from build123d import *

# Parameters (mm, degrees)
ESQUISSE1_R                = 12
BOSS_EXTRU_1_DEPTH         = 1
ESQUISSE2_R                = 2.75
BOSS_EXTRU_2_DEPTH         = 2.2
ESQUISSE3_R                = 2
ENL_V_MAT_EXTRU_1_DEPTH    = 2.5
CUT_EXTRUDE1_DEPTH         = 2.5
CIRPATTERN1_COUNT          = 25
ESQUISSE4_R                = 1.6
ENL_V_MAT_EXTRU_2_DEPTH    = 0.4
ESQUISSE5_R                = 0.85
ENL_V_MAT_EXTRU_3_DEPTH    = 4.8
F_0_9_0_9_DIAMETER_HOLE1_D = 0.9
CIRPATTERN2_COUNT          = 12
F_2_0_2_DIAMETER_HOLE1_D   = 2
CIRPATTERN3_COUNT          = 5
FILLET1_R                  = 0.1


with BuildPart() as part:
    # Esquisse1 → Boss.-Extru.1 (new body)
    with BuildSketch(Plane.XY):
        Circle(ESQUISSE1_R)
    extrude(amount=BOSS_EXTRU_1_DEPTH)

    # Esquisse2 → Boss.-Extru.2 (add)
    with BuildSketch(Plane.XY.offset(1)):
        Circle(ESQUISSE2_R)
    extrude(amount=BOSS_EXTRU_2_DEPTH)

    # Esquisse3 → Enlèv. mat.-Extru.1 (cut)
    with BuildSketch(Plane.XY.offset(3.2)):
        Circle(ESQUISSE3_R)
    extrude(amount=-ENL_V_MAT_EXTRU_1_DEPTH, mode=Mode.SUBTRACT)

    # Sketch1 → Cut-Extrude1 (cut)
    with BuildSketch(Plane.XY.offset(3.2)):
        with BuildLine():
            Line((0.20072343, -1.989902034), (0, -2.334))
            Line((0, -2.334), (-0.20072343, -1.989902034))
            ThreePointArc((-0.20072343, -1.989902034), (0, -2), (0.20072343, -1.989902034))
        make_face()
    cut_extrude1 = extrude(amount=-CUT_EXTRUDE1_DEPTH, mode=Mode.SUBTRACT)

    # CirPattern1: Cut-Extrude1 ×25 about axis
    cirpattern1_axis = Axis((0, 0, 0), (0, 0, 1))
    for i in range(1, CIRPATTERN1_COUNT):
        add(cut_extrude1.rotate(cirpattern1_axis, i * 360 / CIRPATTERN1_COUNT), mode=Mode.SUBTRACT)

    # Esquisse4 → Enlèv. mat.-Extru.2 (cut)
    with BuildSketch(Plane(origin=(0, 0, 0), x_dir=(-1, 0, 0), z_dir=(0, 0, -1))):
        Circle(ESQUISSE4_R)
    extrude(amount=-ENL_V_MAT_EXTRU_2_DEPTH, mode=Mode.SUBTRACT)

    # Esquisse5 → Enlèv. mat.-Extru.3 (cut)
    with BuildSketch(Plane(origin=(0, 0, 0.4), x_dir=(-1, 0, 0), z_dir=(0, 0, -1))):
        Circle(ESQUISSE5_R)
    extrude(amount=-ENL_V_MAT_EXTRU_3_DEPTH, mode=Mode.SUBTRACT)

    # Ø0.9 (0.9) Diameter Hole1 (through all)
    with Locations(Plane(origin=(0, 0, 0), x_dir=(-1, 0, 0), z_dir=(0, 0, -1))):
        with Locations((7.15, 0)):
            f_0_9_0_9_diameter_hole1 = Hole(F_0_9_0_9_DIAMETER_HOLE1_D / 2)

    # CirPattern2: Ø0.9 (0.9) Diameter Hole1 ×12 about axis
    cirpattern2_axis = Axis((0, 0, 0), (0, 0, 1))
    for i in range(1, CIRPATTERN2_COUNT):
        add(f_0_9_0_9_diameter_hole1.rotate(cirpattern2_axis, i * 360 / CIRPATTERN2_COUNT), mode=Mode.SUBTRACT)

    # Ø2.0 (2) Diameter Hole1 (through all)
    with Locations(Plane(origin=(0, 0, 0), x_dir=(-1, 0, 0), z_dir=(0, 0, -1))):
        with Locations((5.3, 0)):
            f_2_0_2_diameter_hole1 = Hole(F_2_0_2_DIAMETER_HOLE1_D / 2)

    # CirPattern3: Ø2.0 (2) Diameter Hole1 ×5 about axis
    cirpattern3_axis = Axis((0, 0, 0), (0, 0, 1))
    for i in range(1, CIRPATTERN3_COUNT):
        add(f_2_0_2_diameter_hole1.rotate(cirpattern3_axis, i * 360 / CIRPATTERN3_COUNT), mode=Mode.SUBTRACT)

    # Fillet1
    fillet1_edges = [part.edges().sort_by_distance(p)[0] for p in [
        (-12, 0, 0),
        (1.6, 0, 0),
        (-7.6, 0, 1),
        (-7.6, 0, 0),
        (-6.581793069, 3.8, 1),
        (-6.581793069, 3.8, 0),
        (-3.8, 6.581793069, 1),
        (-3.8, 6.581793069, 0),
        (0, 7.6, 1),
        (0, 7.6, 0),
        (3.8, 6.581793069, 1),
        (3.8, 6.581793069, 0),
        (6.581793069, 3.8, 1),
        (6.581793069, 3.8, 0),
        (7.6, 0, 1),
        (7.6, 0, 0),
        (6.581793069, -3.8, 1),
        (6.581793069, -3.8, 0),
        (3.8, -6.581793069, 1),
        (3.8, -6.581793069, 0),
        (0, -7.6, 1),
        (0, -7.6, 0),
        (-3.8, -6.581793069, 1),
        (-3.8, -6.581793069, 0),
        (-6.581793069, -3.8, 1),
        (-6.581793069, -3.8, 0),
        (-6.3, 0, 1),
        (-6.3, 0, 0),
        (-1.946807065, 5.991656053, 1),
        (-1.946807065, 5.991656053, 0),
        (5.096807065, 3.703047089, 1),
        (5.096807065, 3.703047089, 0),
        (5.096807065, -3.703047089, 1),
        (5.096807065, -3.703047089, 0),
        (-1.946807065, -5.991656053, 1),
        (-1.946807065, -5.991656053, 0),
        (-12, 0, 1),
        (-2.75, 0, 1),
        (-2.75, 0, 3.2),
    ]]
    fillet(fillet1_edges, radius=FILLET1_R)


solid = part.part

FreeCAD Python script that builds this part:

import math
import FreeCAD as App
import Part
import Sketcher
from FreeCAD import Vector
Q = App.Units.Quantity


def edges_at(feature, points):
    """Names of the edges that pass closest to the given points."""
    edges = feature.Shape.Edges
    near = lambda p: min(range(len(edges)), key=lambda i: edges[i].distToShape(Part.Vertex(*p))[0])
    return sorted({f"Edge{near(p) + 1}" for p in points})

doc = App.newDocument("Part")
params = doc.addObject("Spreadsheet::Sheet", "Params")
for row, (alias, value) in enumerate([
    ("sketch1_diameter", "24 mm"),
    ("pad1_length", "1 mm"),
    ("sketch2_diameter", "5.5 mm"),
    ("pad2_length", "2.2 mm"),
    ("sketch3_diameter", "4 mm"),
    ("pocket1_length", "2.5 mm"),
    ("sketch4_radius", "2 mm"),
    ("pocket2_length", "2.5 mm"),
    ("sketch5_diameter", "3.2 mm"),
    ("pocket3_length", "0.4 mm"),
    ("sketch6_diameter", "1.7 mm"),
    ("pocket4_length", "4.8 mm"),
    ("sketch7_diameter", "0.9 mm"),
    ("hole_diameter", "0.9 mm"),
    ("sketch8_diameter", "2 mm"),
    ("hole2_diameter", "2 mm"),
    ("fillet_radius", "0.1 mm"),
], start=1):
    params.set(f"A{row}", alias)
    params.set(f"B{row}", "=" + value)
    params.setAlias(f"B{row}", alias)

body = doc.addObject("PartDesign::Body", "Body")

# Sketch on XY plane
sketch1 = doc.addObject("Sketcher::SketchObject", "Sketch")
body.addObject(sketch1)
sketch1.AttachmentSupport = (doc.XY_Plane, [""])
sketch1.MapMode = "FlatFace"
sketch1.addGeometry(Part.Circle(Vector(0, 0, 0), Vector(0, 0, 1), 12), False)
sketch1.addConstraint([
    Sketcher.Constraint("Coincident", 0, 3, -1, 1),
    Sketcher.Constraint("Diameter", 0, Q("24 mm")),
])
sketch1.setExpression("Constraints[1]", "Params.sketch1_diameter")
pad1 = doc.addObject("PartDesign::Pad", "Pad")
body.addObject(pad1)
pad1.Profile = sketch1
pad1.setExpression("Length", "Params.pad1_length")

# Sketch on XY plane
sketch2 = doc.addObject("Sketcher::SketchObject", "Sketch001")
body.addObject(sketch2)
sketch2.AttachmentSupport = (doc.XY_Plane, [""])
sketch2.MapMode = "FlatFace"
sketch2.AttachmentOffset = App.Placement(Vector(0, 0, 1), App.Rotation())
sketch2.addGeometry(Part.Circle(Vector(0, 0, 0), Vector(0, 0, 1), 2.8), False)
sketch2.addConstraint([
    Sketcher.Constraint("Coincident", 0, 3, -1, 1),
    Sketcher.Constraint("Diameter", 0, Q("5.5 mm")),
])
sketch2.setExpression("Constraints[1]", "Params.sketch2_diameter")
pad2 = doc.addObject("PartDesign::Pad", "Pad001")
body.addObject(pad2)
pad2.Profile = sketch2
pad2.setExpression("Length", "Params.pad2_length")

# Sketch on XY plane
sketch3 = doc.addObject("Sketcher::SketchObject", "Sketch002")
body.addObject(sketch3)
sketch3.AttachmentSupport = (doc.XY_Plane, [""])
sketch3.MapMode = "FlatFace"
sketch3.AttachmentOffset = App.Placement(Vector(0, 0, 3.2), App.Rotation())
sketch3.addGeometry(Part.Circle(Vector(0, 0, 0), Vector(0, 0, 1), 2), False)
sketch3.addConstraint([
    Sketcher.Constraint("Coincident", 0, 3, -1, 1),
    Sketcher.Constraint("Diameter", 0, Q("4 mm")),
])
sketch3.setExpression("Constraints[1]", "Params.sketch3_diameter")
pocket1 = doc.addObject("PartDesign::Pocket", "Pocket")
body.addObject(pocket1)
pocket1.Profile = sketch3
pocket1.setExpression("Length", "Params.pocket1_length")

# Sketch on XY plane
sketch4 = doc.addObject("Sketcher::SketchObject", "Sketch003")
body.addObject(sketch4)
sketch4.AttachmentSupport = (doc.XY_Plane, [""])
sketch4.MapMode = "FlatFace"
sketch4.AttachmentOffset = App.Placement(Vector(0, 0, 3.2), App.Rotation())
sketch4.addGeometry([
    Part.LineSegment(Vector(0, -2.33, 0), Vector(0.2, -1.99, 0)),
    Part.ArcOfCircle(Part.Circle(Vector(0, 0, 0), Vector(0, 0, 1), 2), math.radians(-95.76), math.radians(-84.24)),
    Part.LineSegment(Vector(-0.2, -1.99, 0), Vector(0, -2.33, 0)),
], False)
sketch4.addConstraint([
    Sketcher.Constraint("Coincident", 0, 2, 1, 2),
    Sketcher.Constraint("Coincident", 1, 1, 2, 1),
    Sketcher.Constraint("Coincident", 2, 2, 0, 1),
    Sketcher.Constraint("Coincident", 1, 3, -1, 1),
    Sketcher.Constraint("PointOnObject", 2, 2, -2),
    Sketcher.Constraint("Horizontal", 0, 2, 1, 1),
    Sketcher.Constraint("Radius", 1, Q("2 mm")),
    Sketcher.Constraint("DistanceY", 2, 2, -1, 1, Q("2.334 mm")),
    Sketcher.Constraint("Distance", 0, Q("0.398363 mm")),
])
sketch4.setExpression("Constraints[6]", "Params.sketch4_radius")
pocket2 = doc.addObject("PartDesign::Pocket", "Pocket001")
body.addObject(pocket2)
pocket2.Profile = sketch4
pocket2.setExpression("Length", "Params.pocket2_length")
doc.recompute()

polarpattern = doc.addObject("PartDesign::PolarPattern", "PolarPattern")
body.addObject(polarpattern)
polarpattern.Originals = [pocket2]
polarpattern.Axis = (doc.Z_Axis, [""])
polarpattern.Angle = 360
polarpattern.Occurrences = 25
body.Tip = polarpattern

# Sketch on XY plane
sketch5 = doc.addObject("Sketcher::SketchObject", "Sketch004")
body.addObject(sketch5)
sketch5.AttachmentSupport = (doc.XY_Plane, [""])
sketch5.MapMode = "FlatFace"
sketch5.addGeometry(Part.Circle(Vector(0, 0, 0), Vector(0, 0, 1), 1.6), False)
sketch5.addConstraint([
    Sketcher.Constraint("Coincident", 0, 3, -1, 1),
    Sketcher.Constraint("Diameter", 0, Q("3.2 mm")),
])
sketch5.setExpression("Constraints[1]", "Params.sketch5_diameter")
pocket3 = doc.addObject("PartDesign::Pocket", "Pocket002")
body.addObject(pocket3)
pocket3.Profile = sketch5
pocket3.setExpression("Length", "Params.pocket3_length")
pocket3.Reversed = True

# Sketch on XY plane
sketch6 = doc.addObject("Sketcher::SketchObject", "Sketch005")
body.addObject(sketch6)
sketch6.AttachmentSupport = (doc.XY_Plane, [""])
sketch6.MapMode = "FlatFace"
sketch6.AttachmentOffset = App.Placement(Vector(0, 0, 0.4), App.Rotation())
sketch6.addGeometry(Part.Circle(Vector(0, 0, 0), Vector(0, 0, 1), 0.8), False)
sketch6.addConstraint([
    Sketcher.Constraint("Coincident", 0, 3, -1, 1),
    Sketcher.Constraint("Diameter", 0, Q("1.7 mm")),
])
sketch6.setExpression("Constraints[1]", "Params.sketch6_diameter")
pocket4 = doc.addObject("PartDesign::Pocket", "Pocket003")
body.addObject(pocket4)
pocket4.Profile = sketch6
pocket4.setExpression("Length", "Params.pocket4_length")
pocket4.Reversed = True

# Sketch on XY plane
sketch7 = doc.addObject("Sketcher::SketchObject", "Sketch006")
body.addObject(sketch7)
sketch7.AttachmentSupport = (doc.XY_Plane, [""])
sketch7.MapMode = "FlatFace"
sketch7.addGeometry(Part.Circle(Vector(-7.15, 0, 0), Vector(0, 0, 1), 0.45), False)
sketch7.addConstraint([
    Sketcher.Constraint("PointOnObject", 0, 3, -1),
    Sketcher.Constraint("Diameter", 0, Q("0.9 mm")),
    Sketcher.Constraint("DistanceX", 0, 3, -1, 1, Q("7.15 mm")),
])
sketch7.setExpression("Constraints[1]", "Params.sketch7_diameter")
doc.recompute()
hole = doc.addObject("PartDesign::Hole", "Hole")
body.addObject(hole)
hole.Profile = sketch7
hole.ThreadType = "None"
hole.setExpression("Diameter", "Params.hole_diameter")
hole.DepthType = "ThroughAll"
hole.Reversed = True
doc.recompute()

polarpattern2 = doc.addObject("PartDesign::PolarPattern", "PolarPattern001")
body.addObject(polarpattern2)
polarpattern2.Originals = [hole]
polarpattern2.Axis = (doc.Z_Axis, [""])
polarpattern2.Angle = 360
polarpattern2.Occurrences = 12
body.Tip = polarpattern2

# Sketch on XY plane
sketch8 = doc.addObject("Sketcher::SketchObject", "Sketch007")
body.addObject(sketch8)
sketch8.AttachmentSupport = (doc.XY_Plane, [""])
sketch8.MapMode = "FlatFace"
sketch8.addGeometry(Part.Circle(Vector(-5.3, 0, 0), Vector(0, 0, 1), 1), False)
sketch8.addConstraint([
    Sketcher.Constraint("PointOnObject", 0, 3, -1),
    Sketcher.Constraint("Diameter", 0, Q("2 mm")),
    Sketcher.Constraint("DistanceX", 0, 3, -1, 1, Q("5.3 mm")),
])
sketch8.setExpression("Constraints[1]", "Params.sketch8_diameter")
doc.recompute()
hole2 = doc.addObject("PartDesign::Hole", "Hole001")
body.addObject(hole2)
hole2.Profile = sketch8
hole2.ThreadType = "None"
hole2.setExpression("Diameter", "Params.hole2_diameter")
hole2.DepthType = "ThroughAll"
hole2.Reversed = True
doc.recompute()

polarpattern3 = doc.addObject("PartDesign::PolarPattern", "PolarPattern002")
body.addObject(polarpattern3)
polarpattern3.Originals = [hole2]
polarpattern3.Axis = (doc.Z_Axis, [""])
polarpattern3.Angle = 360
polarpattern3.Occurrences = 5
body.Tip = polarpattern3
doc.recompute()

fillet = doc.addObject("PartDesign::Fillet", "Fillet")
body.addObject(fillet)
fillet.Base = (polarpattern3, edges_at(polarpattern3, [
    (-12, 0, 0),
    (1.6, 0, 0),
    (-7.6, 0, 1),
    (-7.6, 0, 0),
    (-6.582, 3.8, 1),
    (-6.582, 3.8, 0),
    (-3.8, 6.582, 1),
    (-3.8, 6.582, 0),
    (0, 7.6, 1),
    (0, 7.6, 0),
    (3.8, 6.582, 1),
    (3.8, 6.582, 0),
    (6.582, 3.8, 1),
    (6.582, 3.8, 0),
    (7.6, 0, 1),
    (7.6, 0, 0),
    (6.582, -3.8, 1),
    (6.582, -3.8, 0),
    (3.8, -6.582, 1),
    (3.8, -6.582, 0),
    (0, -7.6, 1),
    (0, -7.6, 0),
    (-3.8, -6.582, 1),
    (-3.8, -6.582, 0),
    (-6.582, -3.8, 1),
    (-6.582, -3.8, 0),
    (-6.3, 0, 1),
    (-6.3, 0, 0),
    (-1.947, 5.992, 1),
    (-1.947, 5.992, 0),
    (5.097, 3.703, 1),
    (5.097, 3.703, 0),
    (5.097, -3.703, 1),
    (5.097, -3.703, 0),
    (-1.947, -5.992, 1),
    (-1.947, -5.992, 0),
    (-12, 0, 1),
    (-2.75, 0, 1),
    (-2.75, 0, 3.2),
]))
fillet.setExpression("Radius", "Params.fillet_radius")

doc.recompute()
